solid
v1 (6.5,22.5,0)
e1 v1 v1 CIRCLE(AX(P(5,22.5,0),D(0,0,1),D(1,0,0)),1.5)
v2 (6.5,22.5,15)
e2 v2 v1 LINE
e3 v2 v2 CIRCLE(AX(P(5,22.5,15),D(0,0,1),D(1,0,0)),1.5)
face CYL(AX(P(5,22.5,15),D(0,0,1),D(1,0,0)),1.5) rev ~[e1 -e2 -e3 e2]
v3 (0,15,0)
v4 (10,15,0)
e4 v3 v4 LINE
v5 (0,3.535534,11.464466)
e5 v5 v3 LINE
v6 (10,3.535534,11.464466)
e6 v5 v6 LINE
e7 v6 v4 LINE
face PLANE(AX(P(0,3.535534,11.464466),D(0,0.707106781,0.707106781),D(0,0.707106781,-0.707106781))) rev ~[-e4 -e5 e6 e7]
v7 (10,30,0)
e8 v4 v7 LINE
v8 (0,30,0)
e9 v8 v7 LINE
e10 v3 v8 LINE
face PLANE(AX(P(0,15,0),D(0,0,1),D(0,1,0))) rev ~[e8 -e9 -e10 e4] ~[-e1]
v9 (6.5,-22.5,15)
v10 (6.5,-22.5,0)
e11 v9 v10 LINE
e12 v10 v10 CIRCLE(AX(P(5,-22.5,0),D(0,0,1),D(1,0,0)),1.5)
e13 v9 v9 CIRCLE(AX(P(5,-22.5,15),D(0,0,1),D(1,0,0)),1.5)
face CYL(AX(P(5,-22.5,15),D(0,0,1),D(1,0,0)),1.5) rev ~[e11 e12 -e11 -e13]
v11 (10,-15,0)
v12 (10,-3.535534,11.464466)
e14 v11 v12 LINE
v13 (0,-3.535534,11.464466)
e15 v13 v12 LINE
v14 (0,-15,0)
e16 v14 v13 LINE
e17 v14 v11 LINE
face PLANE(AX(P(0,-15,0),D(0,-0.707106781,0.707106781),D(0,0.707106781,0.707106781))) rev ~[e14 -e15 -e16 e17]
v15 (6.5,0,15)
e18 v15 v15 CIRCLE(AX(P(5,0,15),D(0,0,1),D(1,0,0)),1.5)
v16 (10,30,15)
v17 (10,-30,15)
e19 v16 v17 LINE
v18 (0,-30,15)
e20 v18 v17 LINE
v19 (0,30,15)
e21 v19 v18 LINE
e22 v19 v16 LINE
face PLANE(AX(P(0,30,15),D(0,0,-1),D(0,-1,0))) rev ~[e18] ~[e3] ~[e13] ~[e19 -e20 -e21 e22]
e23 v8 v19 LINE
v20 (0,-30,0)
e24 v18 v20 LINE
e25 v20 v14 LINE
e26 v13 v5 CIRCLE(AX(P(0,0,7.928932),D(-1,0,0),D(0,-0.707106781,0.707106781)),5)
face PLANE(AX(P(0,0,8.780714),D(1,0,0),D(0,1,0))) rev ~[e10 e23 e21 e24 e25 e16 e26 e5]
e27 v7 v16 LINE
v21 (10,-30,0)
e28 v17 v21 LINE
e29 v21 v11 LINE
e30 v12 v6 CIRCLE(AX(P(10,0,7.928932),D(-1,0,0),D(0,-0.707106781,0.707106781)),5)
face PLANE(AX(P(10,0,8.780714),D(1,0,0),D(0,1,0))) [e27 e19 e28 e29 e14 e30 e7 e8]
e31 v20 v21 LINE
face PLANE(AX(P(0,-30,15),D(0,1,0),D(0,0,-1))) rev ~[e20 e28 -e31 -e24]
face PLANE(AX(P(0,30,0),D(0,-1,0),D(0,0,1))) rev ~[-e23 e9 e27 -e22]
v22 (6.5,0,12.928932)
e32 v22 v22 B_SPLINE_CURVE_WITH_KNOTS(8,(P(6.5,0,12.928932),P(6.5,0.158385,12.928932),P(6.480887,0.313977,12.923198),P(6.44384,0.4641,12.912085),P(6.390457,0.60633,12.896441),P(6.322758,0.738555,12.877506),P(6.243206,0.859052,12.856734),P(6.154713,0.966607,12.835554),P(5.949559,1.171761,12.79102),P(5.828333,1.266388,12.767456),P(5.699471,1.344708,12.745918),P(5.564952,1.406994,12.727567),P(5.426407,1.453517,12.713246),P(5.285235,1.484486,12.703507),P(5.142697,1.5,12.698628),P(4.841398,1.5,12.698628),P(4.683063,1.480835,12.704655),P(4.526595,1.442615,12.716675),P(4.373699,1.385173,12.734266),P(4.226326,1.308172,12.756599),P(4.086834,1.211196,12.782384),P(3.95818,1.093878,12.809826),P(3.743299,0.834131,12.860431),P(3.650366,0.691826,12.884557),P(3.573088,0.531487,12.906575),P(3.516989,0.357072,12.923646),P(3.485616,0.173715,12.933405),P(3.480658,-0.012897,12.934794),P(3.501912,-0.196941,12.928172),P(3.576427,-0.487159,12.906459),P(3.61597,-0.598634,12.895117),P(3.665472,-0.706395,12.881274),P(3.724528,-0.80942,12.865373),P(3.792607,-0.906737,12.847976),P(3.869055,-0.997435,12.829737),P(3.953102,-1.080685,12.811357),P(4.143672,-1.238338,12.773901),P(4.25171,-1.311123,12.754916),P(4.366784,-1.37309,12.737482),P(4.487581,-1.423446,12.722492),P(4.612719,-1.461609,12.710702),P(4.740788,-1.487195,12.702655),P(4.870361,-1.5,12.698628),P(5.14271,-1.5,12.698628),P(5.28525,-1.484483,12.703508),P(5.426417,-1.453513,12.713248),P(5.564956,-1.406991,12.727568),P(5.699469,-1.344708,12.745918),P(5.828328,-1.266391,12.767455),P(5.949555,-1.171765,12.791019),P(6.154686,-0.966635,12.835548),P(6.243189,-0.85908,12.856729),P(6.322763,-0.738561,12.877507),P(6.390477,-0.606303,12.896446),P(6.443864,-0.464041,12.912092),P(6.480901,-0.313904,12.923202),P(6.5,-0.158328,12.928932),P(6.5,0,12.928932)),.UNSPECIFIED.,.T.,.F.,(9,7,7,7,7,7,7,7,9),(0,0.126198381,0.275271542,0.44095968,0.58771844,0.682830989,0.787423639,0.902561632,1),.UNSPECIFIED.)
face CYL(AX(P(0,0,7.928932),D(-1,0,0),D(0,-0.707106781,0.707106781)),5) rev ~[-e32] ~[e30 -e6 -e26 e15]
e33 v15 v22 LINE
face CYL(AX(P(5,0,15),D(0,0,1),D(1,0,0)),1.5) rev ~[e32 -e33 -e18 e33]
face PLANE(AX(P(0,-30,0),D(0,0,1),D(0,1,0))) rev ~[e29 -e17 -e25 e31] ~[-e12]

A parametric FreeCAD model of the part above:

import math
import FreeCAD as App
import Part
import Sketcher

doc = App.newDocument("Part")
body = doc.addObject("PartDesign::Body", "Body")

sketch1 = body.newObject("Sketcher::SketchObject", "Sketch")
sketch1.AttachmentSupport = (doc.getObject("YZ_Plane"), [""])
sketch1.MapMode = "FlatFace"
sketch1.addGeometry(Part.LineSegment(App.Vector(30, 15, 0), App.Vector(-30, 15, 0)), False)
sketch1.addGeometry(Part.LineSegment(App.Vector(-30, 15, 0), App.Vector(-30, 0, 0)), False)
sketch1.addGeometry(Part.LineSegment(App.Vector(-30, 0, 0), App.Vector(-15, 0, 0)), False)
sketch1.addGeometry(Part.LineSegment(App.Vector(-15, 0, 0), App.Vector(-3.535534, 11.464466, 0)), False)
sketch1.addGeometry(Part.ArcOfCircle(Part.Circle(App.Vector(0, 7.928932, 0), App.Vector(0, 0, 1), 5), math.radians(45), math.radians(135)), False)
sketch1.addGeometry(Part.LineSegment(App.Vector(3.535534, 11.464466, 0), App.Vector(15, 0, 0)), False)
sketch1.addGeometry(Part.LineSegment(App.Vector(15, 0, 0), App.Vector(30, 0, 0)), False)
sketch1.addGeometry(Part.LineSegment(App.Vector(30, 0, 0), App.Vector(30, 15, 0)), False)
sketch1.addConstraint(Sketcher.Constraint("Coincident", 0, 2, 1, 1))
sketch1.addConstraint(Sketcher.Constraint("Coincident", 1, 2, 2, 1))
sketch1.addConstraint(Sketcher.Constraint("Coincident", 2, 2, 3, 1))
sketch1.addConstraint(Sketcher.Constraint("Tangent", 3, 2, 4, 2))
sketch1.addConstraint(Sketcher.Constraint("Tangent", 4, 1, 5, 1))
sketch1.addConstraint(Sketcher.Constraint("Coincident", 5, 2, 6, 1))
sketch1.addConstraint(Sketcher.Constraint("Coincident", 6, 2, 7, 1))
sketch1.addConstraint(Sketcher.Constraint("Coincident", 7, 2, 0, 1))
sketch1.addConstraint(Sketcher.Constraint("Horizontal", 0))
sketch1.addConstraint(Sketcher.Constraint("Vertical", 1))
sketch1.addConstraint(Sketcher.Constraint("Horizontal", 2))
sketch1.addConstraint(Sketcher.Constraint("Horizontal", 6))
sketch1.addConstraint(Sketcher.Constraint("Vertical", 7))
sketch1.addConstraint(Sketcher.Constraint("Symmetric", 2, 2, 5, 2, -1, 1))
sketch1.addConstraint(Sketcher.Constraint("Symmetric", 3, 2, 4, 1, -2))
sketch1.addConstraint(Sketcher.Constraint("Perpendicular", 3, 5))
sketch1.addConstraint(Sketcher.Constraint("Equal", 2, 6))
sketch1.addConstraint(Sketcher.Constraint("Equal", 6, 1))
sketch1.addConstraint(Sketcher.Constraint("Radius", 4, 5.0))
sketch1.addConstraint(Sketcher.Constraint("DistanceX", 0, 2, 0, 1, 60.0))
sketch1.addConstraint(Sketcher.Constraint("DistanceX", 2, 1, 2, 2, 15.0))
pad1 = body.newObject("PartDesign::Pad", "Pad")
pad1.Profile = sketch1
pad1.Length = 10

sketch2 = body.newObject("Sketcher::SketchObject", "Sketch001")
sketch2.AttachmentSupport = (doc.getObject("XY_Plane"), [""])
sketch2.MapMode = "FlatFace"
sketch2.AttachmentOffset = App.Placement(App.Vector(0, 0, 15), App.Rotation())
sketch2.addGeometry(Part.Circle(App.Vector(5, 0, 0), App.Vector(0, 0, 1), 1.5), False)
sketch2.addGeometry(Part.Circle(App.Vector(5, 22.5, 0), App.Vector(0, 0, 1), 1.5), False)
sketch2.addGeometry(Part.Circle(App.Vector(5, -22.5, 0), App.Vector(0, 0, 1), 1.5), False)
sketch2.addConstraint(Sketcher.Constraint("Equal", 0, 1))
sketch2.addConstraint(Sketcher.Constraint("Equal", 1, 2))
sketch2.addConstraint(Sketcher.Constraint("Symmetric", 1, 3, 2, 3, -1))
sketch2.addConstraint(Sketcher.Constraint("PointOnObject", 0, 3, -1))
sketch2.addConstraint(Sketcher.Constraint("Vertical", 0, 3, 1, 3))
sketch2.addConstraint(Sketcher.Constraint("Diameter", 0, 3.0))
sketch2.addConstraint(Sketcher.Constraint("DistanceX", -1, 1, 0, 3, 5.0))
sketch2.addConstraint(Sketcher.Constraint("DistanceY", 2, 3, 1, 3, 45.0))
pocket1 = body.newObject("PartDesign::Pocket", "Pocket")
pocket1.Profile = sketch2
pocket1.Type = "ThroughAll"

doc.recompute()
